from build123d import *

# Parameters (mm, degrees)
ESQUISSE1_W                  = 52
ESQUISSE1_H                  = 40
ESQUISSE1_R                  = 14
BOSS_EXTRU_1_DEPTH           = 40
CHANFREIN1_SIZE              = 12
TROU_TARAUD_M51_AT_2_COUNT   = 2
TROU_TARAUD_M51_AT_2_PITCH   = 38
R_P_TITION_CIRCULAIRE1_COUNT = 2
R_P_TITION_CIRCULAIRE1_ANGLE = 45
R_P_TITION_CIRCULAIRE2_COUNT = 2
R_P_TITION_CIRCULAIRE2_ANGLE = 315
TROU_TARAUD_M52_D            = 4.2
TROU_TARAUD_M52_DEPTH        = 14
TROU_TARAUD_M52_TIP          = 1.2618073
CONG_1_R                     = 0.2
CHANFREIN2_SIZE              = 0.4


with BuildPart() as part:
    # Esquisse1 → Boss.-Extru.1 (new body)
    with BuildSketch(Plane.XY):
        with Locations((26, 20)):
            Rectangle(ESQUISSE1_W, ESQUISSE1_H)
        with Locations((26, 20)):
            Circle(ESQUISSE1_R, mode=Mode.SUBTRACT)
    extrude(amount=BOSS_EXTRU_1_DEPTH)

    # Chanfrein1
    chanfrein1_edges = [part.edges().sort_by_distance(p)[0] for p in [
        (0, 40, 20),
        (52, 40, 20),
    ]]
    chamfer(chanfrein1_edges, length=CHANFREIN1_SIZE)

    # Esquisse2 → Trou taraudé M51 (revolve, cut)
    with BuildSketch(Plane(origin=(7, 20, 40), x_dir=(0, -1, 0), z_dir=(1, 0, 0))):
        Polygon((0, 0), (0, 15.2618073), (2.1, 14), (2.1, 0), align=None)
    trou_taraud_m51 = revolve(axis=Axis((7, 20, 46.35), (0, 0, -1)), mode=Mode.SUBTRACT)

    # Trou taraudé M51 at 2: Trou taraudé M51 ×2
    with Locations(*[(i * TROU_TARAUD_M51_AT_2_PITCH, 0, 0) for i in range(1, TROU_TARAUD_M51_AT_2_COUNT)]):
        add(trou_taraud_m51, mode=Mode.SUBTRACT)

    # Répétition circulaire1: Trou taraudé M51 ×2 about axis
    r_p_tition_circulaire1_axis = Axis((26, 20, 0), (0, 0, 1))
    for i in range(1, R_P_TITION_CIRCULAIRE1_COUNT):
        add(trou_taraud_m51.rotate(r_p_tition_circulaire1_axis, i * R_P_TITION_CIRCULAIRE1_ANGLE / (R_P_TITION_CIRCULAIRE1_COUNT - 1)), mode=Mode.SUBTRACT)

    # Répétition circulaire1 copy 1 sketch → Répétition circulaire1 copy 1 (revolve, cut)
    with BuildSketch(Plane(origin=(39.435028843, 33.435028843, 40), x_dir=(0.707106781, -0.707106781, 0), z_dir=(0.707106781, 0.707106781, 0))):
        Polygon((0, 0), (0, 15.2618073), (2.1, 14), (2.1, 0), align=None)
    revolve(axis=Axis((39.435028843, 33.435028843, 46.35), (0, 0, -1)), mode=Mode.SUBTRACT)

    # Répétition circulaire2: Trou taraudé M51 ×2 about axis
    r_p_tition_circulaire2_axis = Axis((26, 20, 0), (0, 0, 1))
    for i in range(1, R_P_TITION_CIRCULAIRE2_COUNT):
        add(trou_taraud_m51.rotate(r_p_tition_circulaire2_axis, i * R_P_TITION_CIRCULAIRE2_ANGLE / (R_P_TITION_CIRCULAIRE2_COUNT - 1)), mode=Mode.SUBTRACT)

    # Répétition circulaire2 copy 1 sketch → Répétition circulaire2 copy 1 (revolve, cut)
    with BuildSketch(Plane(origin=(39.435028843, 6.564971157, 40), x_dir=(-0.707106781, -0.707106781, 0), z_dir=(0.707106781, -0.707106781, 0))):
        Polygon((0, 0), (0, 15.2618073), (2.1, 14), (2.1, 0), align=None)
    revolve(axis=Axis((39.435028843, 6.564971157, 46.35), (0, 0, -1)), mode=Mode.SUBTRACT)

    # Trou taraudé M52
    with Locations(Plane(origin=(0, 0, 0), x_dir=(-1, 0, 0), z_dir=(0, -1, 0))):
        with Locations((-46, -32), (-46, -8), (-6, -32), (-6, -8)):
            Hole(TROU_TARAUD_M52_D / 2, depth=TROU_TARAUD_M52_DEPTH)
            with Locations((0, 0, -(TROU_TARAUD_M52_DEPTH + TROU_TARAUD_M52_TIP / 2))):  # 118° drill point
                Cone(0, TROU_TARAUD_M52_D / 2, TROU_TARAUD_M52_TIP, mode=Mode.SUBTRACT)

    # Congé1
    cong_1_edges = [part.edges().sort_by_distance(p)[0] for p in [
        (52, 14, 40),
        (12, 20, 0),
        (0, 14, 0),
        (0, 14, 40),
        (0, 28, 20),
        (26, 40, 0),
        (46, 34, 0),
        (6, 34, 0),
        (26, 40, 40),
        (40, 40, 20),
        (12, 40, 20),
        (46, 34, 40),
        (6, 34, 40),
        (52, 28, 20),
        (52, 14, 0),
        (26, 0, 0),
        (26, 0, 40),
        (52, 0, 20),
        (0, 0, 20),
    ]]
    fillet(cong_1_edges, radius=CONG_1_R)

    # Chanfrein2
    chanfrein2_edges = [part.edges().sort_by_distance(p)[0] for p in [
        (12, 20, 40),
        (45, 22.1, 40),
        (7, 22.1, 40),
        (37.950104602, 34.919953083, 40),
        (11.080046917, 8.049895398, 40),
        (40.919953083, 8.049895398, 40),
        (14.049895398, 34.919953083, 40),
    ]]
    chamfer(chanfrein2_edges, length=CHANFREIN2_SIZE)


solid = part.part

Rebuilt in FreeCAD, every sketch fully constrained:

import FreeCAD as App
import Part
import Sketcher
Q = App.Units.Quantity


def edges_at(feature, points):
    """Names of the edges that pass closest to the given points."""
    edges = feature.Shape.Edges
    near = lambda p: min(range(len(edges)), key=lambda i: edges[i].distToShape(Part.Vertex(*p))[0])
    return sorted({f"Edge{near(p) + 1}" for p in points})


def add_polygon(sketch, points):
    """Adds a closed chain of lines whose ends are joined by coincident constraints."""
    first, n = sketch.GeometryCount, len(points)
    for a, b in zip(points, points[1:] + points[:1]):
        sketch.addGeometry(Part.LineSegment(App.Vector(*a, 0), App.Vector(*b, 0)), False)
    for i in range(n):
        sketch.addConstraint(Sketcher.Constraint("Coincident", first + i, 2, first + (i + 1) % n, 1))

doc = App.newDocument("Part")
body = doc.addObject("PartDesign::Body", "Body")

# Sketch on XY plane
sketch1 = doc.addObject("Sketcher::SketchObject", "Sketch")
body.addObject(sketch1)
sketch1.AttachmentSupport = (doc.XY_Plane, [""])
sketch1.MapMode = "FlatFace"
add_polygon(sketch1, [(0, 40), (0, 0), (52, 0), (52, 40)])  # lines 0-3
sketch1.addGeometry(Part.Circle(App.Vector(26, 20, 0), App.Vector(0, 0, 1), 14), False)  # 4
sketch1.addConstraint([
    Sketcher.Constraint("Vertical", 0),
    Sketcher.Constraint("Horizontal", 1),
    Sketcher.Constraint("Vertical", 2),
    Sketcher.Constraint("Horizontal", 3),
    Sketcher.Constraint("Coincident", 0, 2, -1, 1),
    Sketcher.Constraint("Diameter", 4, 28.0),
    Sketcher.Constraint("DistanceX", 1, 1, 1, 2, 52.0),
    Sketcher.Constraint("DistanceY", 0, 2, 0, 1, 40.0),
    Sketcher.Constraint("DistanceX", -1, 1, 4, 3, 26.0),
    Sketcher.Constraint("DistanceY", -1, 1, 4, 3, 20.0),
])
pad1 = doc.addObject("PartDesign::Pad", "Pad")
body.addObject(pad1)
pad1.Profile = sketch1
pad1.Length = 40
doc.recompute()

chamfer = doc.addObject("PartDesign::Chamfer", "Chamfer")
body.addObject(chamfer)
chamfer.Base = (pad1, edges_at(pad1, [(0, 40, 20), (52, 40, 20)]))
chamfer.Size = 12

# Sketch on YZ plane
sketch2 = doc.addObject("Sketcher::SketchObject", "Sketch001")
body.addObject(sketch2)
sketch2.AttachmentSupport = (doc.YZ_Plane, [""])
sketch2.MapMode = "FlatFace"
sketch2.AttachmentOffset = App.Placement(App.Vector(0, 0, 7), App.Rotation())
add_polygon(sketch2, [(20, 24.7), (20, 40), (17.9, 40), (17.9, 26)])  # lines 0-3
sketch2.addGeometry(Part.LineSegment(App.Vector(20, 40, 0), App.Vector(20, 24.7, 0)), True)  # axis
sketch2.addConstraint([
    Sketcher.Constraint("Vertical", 0),
    Sketcher.Constraint("Horizontal", 1),
    Sketcher.Constraint("Vertical", 2),
    Sketcher.Constraint("Vertical", 4),
    Sketcher.Constraint("Coincident", 4, 1, 0, 2),
    Sketcher.Constraint("Equal", 0, 4),
    Sketcher.Constraint("DistanceY", 2, 2, 2, 1, 14.0),
    Sketcher.Constraint("Angle", 3, Q("-31 deg")),
    Sketcher.Constraint("DistanceX", 1, 2, 1, 1, 2.1),
    Sketcher.Constraint("DistanceX", -1, 1, 0, 2, 20.0),
    Sketcher.Constraint("DistanceY", -1, 1, 0, 2, 40.0),
])
groove = doc.addObject("PartDesign::Groove", "Groove")
body.addObject(groove)
groove.Profile = sketch2
groove.ReferenceAxis = (sketch2, ["Axis0"])
groove.Angle = 360
doc.recompute()

linearpattern = doc.addObject("PartDesign::LinearPattern", "LinearPattern")
body.addObject(linearpattern)
linearpattern.Originals = [groove]
linearpattern.Direction = (doc.X_Axis, [""])
linearpattern.Mode = "offset"
linearpattern.Offset = 38
linearpattern.Occurrences = 2
body.Tip = linearpattern
doc.recompute()

datumline = doc.addObject("PartDesign::Line", "DatumLine")
body.addObject(datumline)
datumline.Placement = App.Placement(App.Vector(26, 20, 0), App.Rotation(App.Vector(0, 0, 1), App.Vector(0, 0, 1)))
polarpattern = doc.addObject("PartDesign::PolarPattern", "PolarPattern")
body.addObject(polarpattern)
polarpattern.Originals = [groove]
polarpattern.Axis = (datumline, [""])
polarpattern.Angle = 45
polarpattern.Occurrences = 2
body.Tip = polarpattern

# Sketch on an angled plane
sketch3 = doc.addObject("Sketcher::SketchObject", "Sketch002")
body.addObject(sketch3)
sketch3.Placement = App.Placement(App.Vector(39.435029, 33.435029, 40), App.Rotation(App.Vector(0.707106781, -0.707106781, 0), App.Vector(0, 0, -0.999999999), App.Vector(0.707106781, 0.707106781, 0), "ZXY"))
add_polygon(sketch3, [(0, 15.3), (0, 0), (2.1, 0), (2.1, 14)])  # lines 0-3
sketch3.addConstraint([
    Sketcher.Constraint("Vertical", 0),
    Sketcher.Constraint("Horizontal", 1),
    Sketcher.Constraint("Vertical", 2),
    Sketcher.Constraint("Coincident", 0, 2, -1, 1),
    Sketcher.Constraint("DistanceY", 2, 1, 2, 2, 14.0),
    Sketcher.Constraint("Angle", 3, Q("149 deg")),
    Sketcher.Constraint("DistanceX", 1, 1, 1, 2, 2.1),
])
groove2 = doc.addObject("PartDesign::Groove", "Groove001")
body.addObject(groove2)
groove2.Profile = sketch3
groove2.ReferenceAxis = (sketch3, ["V_Axis"])
groove2.Angle = 360
doc.recompute()

datumline2 = doc.addObject("PartDesign::Line", "DatumLine001")
body.addObject(datumline2)
datumline2.Placement = App.Placement(App.Vector(26, 20, 0), App.Rotation(App.Vector(0, 0, 1), App.Vector(0, 0, 1)))
polarpattern2 = doc.addObject("PartDesign::PolarPattern", "PolarPattern001")
body.addObject(polarpattern2)
polarpattern2.Originals = [groove]
polarpattern2.Axis = (datumline2, [""])
polarpattern2.Angle = 315
polarpattern2.Occurrences = 2
body.Tip = polarpattern2

# Sketch on an angled plane
sketch4 = doc.addObject("Sketcher::SketchObject", "Sketch003")
body.addObject(sketch4)
sketch4.Placement = App.Placement(App.Vector(39.435029, 6.564971, 40), App.Rotation(App.Vector(-0.707106781, -0.707106781, 0), App.Vector(0, 0, -0.999999999), App.Vector(0.707106781, -0.707106781, 0), "ZXY"))
add_polygon(sketch4, [(0, 15.3), (0, 0), (2.1, 0), (2.1, 14)])  # lines 0-3
sketch4.addConstraint([
    Sketcher.Constraint("Vertical", 0),
    Sketcher.Constraint("Horizontal", 1),
    Sketcher.Constraint("Vertical", 2),
    Sketcher.Constraint("Coincident", 0, 2, -1, 1),
    Sketcher.Constraint("DistanceY", 2, 1, 2, 2, 14.0),
    Sketcher.Constraint("Angle", 3, Q("149 deg")),
    Sketcher.Constraint("DistanceX", 1, 1, 1, 2, 2.1),
])
groove3 = doc.addObject("PartDesign::Groove", "Groove002")
body.addObject(groove3)
groove3.Profile = sketch4
groove3.ReferenceAxis = (sketch4, ["V_Axis"])
groove3.Angle = 360

# Sketch on XZ plane
sketch5 = doc.addObject("Sketcher::SketchObject", "Sketch004")
body.addObject(sketch5)
sketch5.AttachmentSupport = (doc.XZ_Plane, [""])
sketch5.MapMode = "FlatFace"
sketch5.addGeometry([
    Part.Circle(App.Vector(46, 32, 0), App.Vector(0, 0, 1), 2.1),
    Part.Circle(App.Vector(46, 8, 0), App.Vector(0, 0, 1), 2.1),
    Part.Circle(App.Vector(6, 32, 0), App.Vector(0, 0, 1), 2.1),
    Part.Circle(App.Vector(6, 8, 0), App.Vector(0, 0, 1), 2.1),
], False)
sketch5.addConstraint([
    Sketcher.Constraint("Equal", 0, 1),
    Sketcher.Constraint("Equal", 1, 2),
    Sketcher.Constraint("Equal", 2, 3),
    Sketcher.Constraint("Horizontal", 0, 3, 2, 3),
    Sketcher.Constraint("Horizontal", 1, 3, 3, 3),
    Sketcher.Constraint("Vertical", 0, 3, 1, 3),
    Sketcher.Constraint("Vertical", 2, 3, 3, 3),
    Sketcher.Constraint("Diameter", 0, 4.2),
    Sketcher.Constraint("DistanceX", -1, 1, 0, 3, 46.0),
    Sketcher.Constraint("DistanceY", -1, 1, 0, 3, 32.0),
    Sketcher.Constraint("DistanceY", -1, 1, 1, 3, 8.0),
    Sketcher.Constraint("DistanceX", -1, 1, 2, 3, 6.0),
])
doc.recompute()
hole = doc.addObject("PartDesign::Hole", "Hole")
body.addObject(hole)
hole.Profile = sketch5
hole.ThreadType = "None"
hole.Diameter = 4.2
hole.DepthType = "Dimension"
hole.Depth = 14
hole.DrillPoint = "Angled"
hole.DrillPointAngle = 118
doc.recompute()

fillet = doc.addObject("PartDesign::Fillet", "Fillet")
body.addObject(fillet)
fillet.Base = (hole, edges_at(hole, [
    (52, 14, 40),
    (12, 20, 0),
    (0, 14, 0),
    (0, 14, 40),
    (0, 28, 20),
    (26, 40, 0),
    (46, 34, 0),
    (6, 34, 0),
    (26, 40, 40),
    (40, 40, 20),
    (12, 40, 20),
    (46, 34, 40),
    (6, 34, 40),
    (52, 28, 20),
    (52, 14, 0),
    (26, 0, 0),
    (26, 0, 40),
    (52, 0, 20),
    (0, 0, 20),
]))
fillet.Radius = 0.2
doc.recompute()

chamfer2 = doc.addObject("PartDesign::Chamfer", "Chamfer001")
body.addObject(chamfer2)
chamfer2.Base = (fillet, edges_at(fillet, [
    (12, 20, 40),
    (45, 22.1, 40),
    (7, 22.1, 40),
    (37.95, 34.92, 40),
    (11.08, 8.05, 40),
    (40.92, 8.05, 40),
    (14.05, 34.92, 40),
]))
chamfer2.Size = 0.4

doc.recompute()
